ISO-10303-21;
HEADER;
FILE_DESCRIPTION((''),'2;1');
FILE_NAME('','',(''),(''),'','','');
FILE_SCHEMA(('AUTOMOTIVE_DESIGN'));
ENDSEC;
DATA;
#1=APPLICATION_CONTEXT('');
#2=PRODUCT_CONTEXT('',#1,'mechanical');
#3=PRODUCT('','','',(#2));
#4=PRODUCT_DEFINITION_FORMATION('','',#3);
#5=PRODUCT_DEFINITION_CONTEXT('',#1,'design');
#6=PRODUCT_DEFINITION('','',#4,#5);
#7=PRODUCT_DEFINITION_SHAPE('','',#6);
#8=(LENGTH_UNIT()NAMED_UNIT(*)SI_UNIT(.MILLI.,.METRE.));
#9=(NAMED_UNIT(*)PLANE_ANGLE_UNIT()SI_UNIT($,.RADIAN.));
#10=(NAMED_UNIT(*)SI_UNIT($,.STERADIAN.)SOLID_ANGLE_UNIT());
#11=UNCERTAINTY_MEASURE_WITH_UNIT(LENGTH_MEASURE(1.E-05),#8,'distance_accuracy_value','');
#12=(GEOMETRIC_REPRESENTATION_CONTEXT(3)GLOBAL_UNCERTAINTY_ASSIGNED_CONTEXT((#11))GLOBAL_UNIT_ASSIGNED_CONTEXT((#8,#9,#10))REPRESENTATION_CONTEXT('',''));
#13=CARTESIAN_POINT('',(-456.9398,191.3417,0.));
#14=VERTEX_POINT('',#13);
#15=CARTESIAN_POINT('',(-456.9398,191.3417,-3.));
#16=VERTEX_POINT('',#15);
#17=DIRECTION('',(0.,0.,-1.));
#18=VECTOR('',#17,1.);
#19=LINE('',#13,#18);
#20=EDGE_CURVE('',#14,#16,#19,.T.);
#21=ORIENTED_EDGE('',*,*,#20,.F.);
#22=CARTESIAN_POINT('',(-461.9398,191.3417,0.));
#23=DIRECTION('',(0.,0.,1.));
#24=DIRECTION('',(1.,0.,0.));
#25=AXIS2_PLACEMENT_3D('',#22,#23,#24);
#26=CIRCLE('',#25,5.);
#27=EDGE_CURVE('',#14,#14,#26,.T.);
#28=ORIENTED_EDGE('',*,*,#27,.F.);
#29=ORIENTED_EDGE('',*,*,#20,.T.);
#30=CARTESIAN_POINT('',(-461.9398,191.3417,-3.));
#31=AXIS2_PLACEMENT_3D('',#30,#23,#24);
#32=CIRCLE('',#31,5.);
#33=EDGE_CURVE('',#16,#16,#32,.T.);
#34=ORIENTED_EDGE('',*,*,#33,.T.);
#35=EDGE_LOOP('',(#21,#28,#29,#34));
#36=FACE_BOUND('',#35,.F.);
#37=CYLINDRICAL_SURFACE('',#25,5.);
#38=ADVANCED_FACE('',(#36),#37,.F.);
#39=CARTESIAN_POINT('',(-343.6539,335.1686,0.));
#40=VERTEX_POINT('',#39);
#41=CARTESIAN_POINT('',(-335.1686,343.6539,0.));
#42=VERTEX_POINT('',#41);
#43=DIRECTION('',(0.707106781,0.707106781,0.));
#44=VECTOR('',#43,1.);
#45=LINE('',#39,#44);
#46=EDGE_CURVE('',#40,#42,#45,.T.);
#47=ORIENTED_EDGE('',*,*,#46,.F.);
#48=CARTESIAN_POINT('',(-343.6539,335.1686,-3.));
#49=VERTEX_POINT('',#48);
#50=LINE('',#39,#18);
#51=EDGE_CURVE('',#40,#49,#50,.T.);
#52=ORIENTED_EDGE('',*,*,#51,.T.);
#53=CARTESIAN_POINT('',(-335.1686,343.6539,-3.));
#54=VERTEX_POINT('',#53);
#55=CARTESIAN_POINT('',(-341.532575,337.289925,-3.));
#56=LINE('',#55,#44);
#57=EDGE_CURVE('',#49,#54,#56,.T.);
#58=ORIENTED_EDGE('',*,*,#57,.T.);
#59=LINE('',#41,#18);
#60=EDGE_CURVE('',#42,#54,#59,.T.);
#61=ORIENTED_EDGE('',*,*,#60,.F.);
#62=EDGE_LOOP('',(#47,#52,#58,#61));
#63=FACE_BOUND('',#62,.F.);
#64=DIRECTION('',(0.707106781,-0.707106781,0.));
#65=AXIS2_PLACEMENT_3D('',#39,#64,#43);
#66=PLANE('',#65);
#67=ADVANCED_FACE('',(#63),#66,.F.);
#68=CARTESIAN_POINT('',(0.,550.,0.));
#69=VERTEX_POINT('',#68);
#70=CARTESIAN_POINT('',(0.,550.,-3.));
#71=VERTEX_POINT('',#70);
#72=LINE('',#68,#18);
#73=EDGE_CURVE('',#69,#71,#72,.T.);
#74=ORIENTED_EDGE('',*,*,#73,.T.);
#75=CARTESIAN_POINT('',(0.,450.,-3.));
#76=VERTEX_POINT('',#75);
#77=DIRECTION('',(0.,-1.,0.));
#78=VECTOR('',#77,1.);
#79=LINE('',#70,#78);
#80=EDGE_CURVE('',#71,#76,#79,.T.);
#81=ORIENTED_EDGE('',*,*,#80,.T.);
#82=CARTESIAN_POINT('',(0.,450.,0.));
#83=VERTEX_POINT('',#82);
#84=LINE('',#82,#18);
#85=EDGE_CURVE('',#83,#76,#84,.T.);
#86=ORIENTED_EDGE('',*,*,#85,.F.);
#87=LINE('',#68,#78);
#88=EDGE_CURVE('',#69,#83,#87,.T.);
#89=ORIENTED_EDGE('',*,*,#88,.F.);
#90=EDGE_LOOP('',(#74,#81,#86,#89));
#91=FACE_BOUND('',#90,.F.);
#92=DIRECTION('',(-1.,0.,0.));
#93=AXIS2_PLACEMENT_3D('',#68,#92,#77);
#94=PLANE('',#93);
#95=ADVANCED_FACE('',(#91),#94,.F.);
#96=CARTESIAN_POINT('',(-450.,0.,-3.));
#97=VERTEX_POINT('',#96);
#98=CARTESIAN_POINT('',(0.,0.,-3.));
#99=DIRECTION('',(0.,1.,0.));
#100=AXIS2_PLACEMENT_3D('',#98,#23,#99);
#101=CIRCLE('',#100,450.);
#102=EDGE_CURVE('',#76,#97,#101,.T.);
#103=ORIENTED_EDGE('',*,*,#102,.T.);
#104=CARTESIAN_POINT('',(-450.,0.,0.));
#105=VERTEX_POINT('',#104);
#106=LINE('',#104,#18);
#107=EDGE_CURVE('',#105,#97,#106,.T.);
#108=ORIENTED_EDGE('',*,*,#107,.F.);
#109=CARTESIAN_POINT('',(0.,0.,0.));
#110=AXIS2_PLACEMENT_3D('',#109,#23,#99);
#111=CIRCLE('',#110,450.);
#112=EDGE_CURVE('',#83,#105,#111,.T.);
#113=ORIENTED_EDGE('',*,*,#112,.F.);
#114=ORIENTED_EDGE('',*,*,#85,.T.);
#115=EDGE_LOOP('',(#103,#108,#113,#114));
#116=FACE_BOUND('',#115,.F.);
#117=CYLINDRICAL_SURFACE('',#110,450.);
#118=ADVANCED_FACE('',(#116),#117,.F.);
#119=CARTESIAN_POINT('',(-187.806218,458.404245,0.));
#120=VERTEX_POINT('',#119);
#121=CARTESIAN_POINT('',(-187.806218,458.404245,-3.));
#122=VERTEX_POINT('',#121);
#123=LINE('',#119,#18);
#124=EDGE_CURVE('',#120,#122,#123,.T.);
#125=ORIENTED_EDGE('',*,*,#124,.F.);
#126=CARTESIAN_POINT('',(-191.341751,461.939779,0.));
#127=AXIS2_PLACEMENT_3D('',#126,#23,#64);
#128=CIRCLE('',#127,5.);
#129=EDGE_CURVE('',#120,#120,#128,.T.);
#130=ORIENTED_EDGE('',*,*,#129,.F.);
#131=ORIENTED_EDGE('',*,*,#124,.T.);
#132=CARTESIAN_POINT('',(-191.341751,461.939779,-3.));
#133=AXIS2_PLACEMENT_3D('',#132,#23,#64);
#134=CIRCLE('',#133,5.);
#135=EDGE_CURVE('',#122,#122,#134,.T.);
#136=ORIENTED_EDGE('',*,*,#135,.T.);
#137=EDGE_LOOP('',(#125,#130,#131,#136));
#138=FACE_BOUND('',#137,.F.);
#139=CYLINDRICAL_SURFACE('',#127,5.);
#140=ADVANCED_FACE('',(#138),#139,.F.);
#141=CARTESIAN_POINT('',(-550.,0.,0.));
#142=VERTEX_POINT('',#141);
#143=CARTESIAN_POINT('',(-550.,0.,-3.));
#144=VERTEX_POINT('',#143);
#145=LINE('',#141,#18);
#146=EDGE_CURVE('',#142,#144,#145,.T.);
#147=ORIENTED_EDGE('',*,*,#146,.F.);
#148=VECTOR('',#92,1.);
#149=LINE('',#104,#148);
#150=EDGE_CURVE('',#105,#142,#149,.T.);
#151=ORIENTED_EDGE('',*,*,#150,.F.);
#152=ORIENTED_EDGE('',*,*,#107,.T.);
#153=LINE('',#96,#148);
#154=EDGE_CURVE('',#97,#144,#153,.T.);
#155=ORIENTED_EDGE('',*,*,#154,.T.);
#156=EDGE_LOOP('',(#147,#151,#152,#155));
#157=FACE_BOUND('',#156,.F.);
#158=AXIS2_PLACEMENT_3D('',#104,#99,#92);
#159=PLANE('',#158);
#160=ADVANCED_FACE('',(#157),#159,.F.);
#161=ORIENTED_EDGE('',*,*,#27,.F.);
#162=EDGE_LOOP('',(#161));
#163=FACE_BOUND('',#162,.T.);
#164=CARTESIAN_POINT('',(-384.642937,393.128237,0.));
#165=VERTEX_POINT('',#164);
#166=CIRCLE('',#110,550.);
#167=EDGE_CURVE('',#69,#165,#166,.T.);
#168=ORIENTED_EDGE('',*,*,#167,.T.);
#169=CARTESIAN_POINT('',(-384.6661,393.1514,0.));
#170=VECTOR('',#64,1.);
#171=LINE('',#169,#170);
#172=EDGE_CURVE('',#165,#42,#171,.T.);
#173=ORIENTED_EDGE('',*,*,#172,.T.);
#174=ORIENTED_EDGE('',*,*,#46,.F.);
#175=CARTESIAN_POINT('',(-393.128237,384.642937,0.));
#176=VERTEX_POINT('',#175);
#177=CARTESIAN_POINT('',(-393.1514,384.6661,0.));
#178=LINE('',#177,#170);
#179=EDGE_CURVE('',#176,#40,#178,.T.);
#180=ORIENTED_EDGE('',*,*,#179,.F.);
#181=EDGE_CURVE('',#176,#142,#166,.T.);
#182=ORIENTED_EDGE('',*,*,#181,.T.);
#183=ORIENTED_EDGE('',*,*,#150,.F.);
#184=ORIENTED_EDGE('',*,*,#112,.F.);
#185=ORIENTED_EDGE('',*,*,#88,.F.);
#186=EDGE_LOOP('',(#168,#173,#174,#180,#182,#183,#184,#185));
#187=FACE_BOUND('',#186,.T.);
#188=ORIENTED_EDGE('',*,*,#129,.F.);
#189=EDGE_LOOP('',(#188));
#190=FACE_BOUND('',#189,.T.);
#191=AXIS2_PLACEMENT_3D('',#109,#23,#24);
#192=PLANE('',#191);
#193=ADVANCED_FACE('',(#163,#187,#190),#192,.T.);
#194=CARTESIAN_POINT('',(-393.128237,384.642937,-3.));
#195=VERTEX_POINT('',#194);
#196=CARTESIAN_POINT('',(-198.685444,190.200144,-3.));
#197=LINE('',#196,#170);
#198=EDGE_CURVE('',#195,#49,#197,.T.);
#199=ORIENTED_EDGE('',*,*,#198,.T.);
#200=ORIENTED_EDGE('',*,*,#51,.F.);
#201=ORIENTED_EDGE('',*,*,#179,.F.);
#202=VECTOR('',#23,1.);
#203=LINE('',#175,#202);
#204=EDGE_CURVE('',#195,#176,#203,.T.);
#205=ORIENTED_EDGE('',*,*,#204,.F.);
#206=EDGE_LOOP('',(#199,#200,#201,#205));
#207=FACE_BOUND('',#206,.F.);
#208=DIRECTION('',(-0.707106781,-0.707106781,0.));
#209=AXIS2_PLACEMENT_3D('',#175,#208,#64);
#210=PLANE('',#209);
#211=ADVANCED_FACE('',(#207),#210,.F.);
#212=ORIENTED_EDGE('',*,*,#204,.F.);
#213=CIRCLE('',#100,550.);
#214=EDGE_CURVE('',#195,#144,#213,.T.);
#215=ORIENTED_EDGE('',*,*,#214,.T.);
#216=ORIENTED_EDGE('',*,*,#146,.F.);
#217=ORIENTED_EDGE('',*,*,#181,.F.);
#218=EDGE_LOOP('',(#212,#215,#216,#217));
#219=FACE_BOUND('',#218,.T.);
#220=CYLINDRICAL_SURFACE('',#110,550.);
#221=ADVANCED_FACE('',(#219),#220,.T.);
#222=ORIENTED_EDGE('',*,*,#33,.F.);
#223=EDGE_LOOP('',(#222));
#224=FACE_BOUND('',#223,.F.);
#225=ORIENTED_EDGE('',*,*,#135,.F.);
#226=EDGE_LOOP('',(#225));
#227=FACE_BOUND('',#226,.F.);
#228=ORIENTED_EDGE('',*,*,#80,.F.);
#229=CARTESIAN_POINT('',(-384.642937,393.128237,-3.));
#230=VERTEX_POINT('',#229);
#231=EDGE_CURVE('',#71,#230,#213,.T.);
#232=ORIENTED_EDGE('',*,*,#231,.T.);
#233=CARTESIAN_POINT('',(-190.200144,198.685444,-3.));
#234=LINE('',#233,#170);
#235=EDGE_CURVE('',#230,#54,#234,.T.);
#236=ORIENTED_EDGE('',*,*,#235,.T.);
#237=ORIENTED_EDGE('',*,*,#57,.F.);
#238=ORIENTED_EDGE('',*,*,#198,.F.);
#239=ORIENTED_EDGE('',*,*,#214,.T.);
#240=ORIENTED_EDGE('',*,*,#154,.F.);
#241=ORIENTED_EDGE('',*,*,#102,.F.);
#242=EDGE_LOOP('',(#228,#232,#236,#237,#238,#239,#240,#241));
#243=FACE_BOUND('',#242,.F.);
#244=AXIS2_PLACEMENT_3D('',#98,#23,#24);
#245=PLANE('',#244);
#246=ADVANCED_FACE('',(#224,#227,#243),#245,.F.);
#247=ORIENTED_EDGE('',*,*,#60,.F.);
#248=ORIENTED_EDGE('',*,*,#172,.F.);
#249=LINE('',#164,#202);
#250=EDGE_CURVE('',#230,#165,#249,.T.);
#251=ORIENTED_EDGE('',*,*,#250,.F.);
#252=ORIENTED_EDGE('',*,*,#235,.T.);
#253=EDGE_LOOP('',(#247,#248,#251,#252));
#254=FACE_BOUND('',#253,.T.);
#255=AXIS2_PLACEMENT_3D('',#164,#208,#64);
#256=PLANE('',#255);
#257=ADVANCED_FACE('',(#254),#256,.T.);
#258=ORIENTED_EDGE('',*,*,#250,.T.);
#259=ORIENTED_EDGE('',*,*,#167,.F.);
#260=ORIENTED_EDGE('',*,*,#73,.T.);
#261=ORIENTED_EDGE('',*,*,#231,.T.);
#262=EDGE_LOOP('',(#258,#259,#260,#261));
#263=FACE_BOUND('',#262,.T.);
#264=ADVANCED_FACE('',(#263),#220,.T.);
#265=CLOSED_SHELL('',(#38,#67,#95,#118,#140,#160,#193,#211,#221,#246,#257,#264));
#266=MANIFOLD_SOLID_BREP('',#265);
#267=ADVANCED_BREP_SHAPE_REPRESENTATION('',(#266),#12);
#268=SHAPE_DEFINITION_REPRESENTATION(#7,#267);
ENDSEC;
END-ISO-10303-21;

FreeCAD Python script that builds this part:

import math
import FreeCAD as App
import Part
import Sketcher
from FreeCAD import Vector
Q = App.Units.Quantity


def add_polygon(sketch, points):
    """Adds a closed chain of lines whose ends are joined by coincident constraints."""
    first, n = sketch.GeometryCount, len(points)
    for a, b in zip(points, points[1:] + points[:1]):
        sketch.addGeometry(Part.LineSegment(App.Vector(*a, 0), App.Vector(*b, 0)), False)
    for i in range(n):
        sketch.addConstraint(Sketcher.Constraint("Coincident", first + i, 2, first + (i + 1) % n, 1))

doc = App.newDocument("Part")
body = doc.addObject("PartDesign::Body", "Body")

# Sketch on XY plane
sketch1 = doc.addObject("Sketcher::SketchObject", "Sketch")
body.addObject(sketch1)
sketch1.AttachmentSupport = (doc.XY_Plane, [""])
sketch1.MapMode = "FlatFace"
sketch1.addGeometry([
    Part.LineSegment(Vector(0, 450, 0), Vector(0, 550, 0)),
    Part.ArcOfCircle(Part.Circle(Vector(0, 0, 0), Vector(0, 0, 1), 550), math.radians(90), math.radians(180)),
    Part.LineSegment(Vector(-550, 0, 0), Vector(-450, 0, 0)),
    Part.ArcOfCircle(Part.Circle(Vector(0, 0, 0), Vector(0, 0, 1), 450), math.radians(90), math.radians(180)),
], False)
sketch1.addConstraint([
    Sketcher.Constraint("Coincident", 0, 2, 1, 1),
    Sketcher.Constraint("Coincident", 1, 2, 2, 1),
    Sketcher.Constraint("Coincident", 2, 2, 3, 2),
    Sketcher.Constraint("Coincident", 3, 1, 0, 1),
    Sketcher.Constraint("Vertical", 0),
    Sketcher.Constraint("Horizontal", 2),
    Sketcher.Constraint("Coincident", 1, 3, -1, 1),
    Sketcher.Constraint("Coincident", 3, 3, -1, 1),
    Sketcher.Constraint("PointOnObject", 0, 2, -2),
    Sketcher.Constraint("PointOnObject", 2, 2, -1),
    Sketcher.Constraint("Radius", 1, 550.0),
    Sketcher.Constraint("Radius", 3, 450.0),
])
pad1 = doc.addObject("PartDesign::Pad", "Pad")
body.addObject(pad1)
pad1.Profile = sketch1
pad1.Length = 3
pad1.Reversed = True

# Sketch on XY plane
sketch2 = doc.addObject("Sketcher::SketchObject", "Sketch001")
body.addObject(sketch2)
sketch2.AttachmentSupport = (doc.XY_Plane, [""])
sketch2.MapMode = "FlatFace"
sketch2.addGeometry(Part.Circle(Vector(-462, 191, 0), Vector(0, 0, 1), 5), False)
sketch2.addConstraint([
    Sketcher.Constraint("Diameter", 0, 10.0),
    Sketcher.Constraint("DistanceX", 0, 3, -1, 1, 461.9398),
    Sketcher.Constraint("DistanceY", -1, 1, 0, 3, 191.3417),
])
pocket1 = doc.addObject("PartDesign::Pocket", "Pocket")
body.addObject(pocket1)
pocket1.Profile = sketch2
pocket1.Type = "ThroughAll"
doc.recompute()

polarpattern = doc.addObject("PartDesign::PolarPattern", "PolarPattern")
body.addObject(polarpattern)
polarpattern.Originals = [pocket1]
polarpattern.Axis = (doc.Z_Axis, [""])
polarpattern.Angle = 45
polarpattern.Occurrences = 2
polarpattern.Reversed = True
body.Tip = polarpattern

# Sketch on XY plane
sketch3 = doc.addObject("Sketcher::SketchObject", "Sketch002")
body.addObject(sketch3)
sketch3.AttachmentSupport = (doc.XY_Plane, [""])
sketch3.MapMode = "FlatFace"
add_polygon(sketch3, [(-335.169, 343.654), (-384.666, 393.151), (-393.151, 384.666), (-393.128, 384.643), (-343.654, 335.169)])  # lines 0-4
sketch3.addConstraint([
    Sketcher.Constraint("Perpendicular", 0, 1),
    Sketcher.Constraint("Perpendicular", 1, 2),
    Sketcher.Constraint("Perpendicular", 1, 3),
    Sketcher.Constraint("Perpendicular", 3, 4),
    Sketcher.Constraint("Angle", 3, Q("-45 deg")),
    Sketcher.Constraint("Distance", 0, 70.0),
    Sketcher.Constraint("Distance", 1, 12.0),
    Sketcher.Constraint("DistanceX", 0, 2, -1, 1, 384.666),
    Sketcher.Constraint("DistanceY", -1, 1, 1, 2, 384.666),
    Sketcher.Constraint("DistanceY", -1, 1, 2, 2, 384.643),
])
pocket2 = doc.addObject("PartDesign::Pocket", "Pocket001")
body.addObject(pocket2)
pocket2.Profile = sketch3
pocket2.Type = "ThroughAll"

doc.recompute()
